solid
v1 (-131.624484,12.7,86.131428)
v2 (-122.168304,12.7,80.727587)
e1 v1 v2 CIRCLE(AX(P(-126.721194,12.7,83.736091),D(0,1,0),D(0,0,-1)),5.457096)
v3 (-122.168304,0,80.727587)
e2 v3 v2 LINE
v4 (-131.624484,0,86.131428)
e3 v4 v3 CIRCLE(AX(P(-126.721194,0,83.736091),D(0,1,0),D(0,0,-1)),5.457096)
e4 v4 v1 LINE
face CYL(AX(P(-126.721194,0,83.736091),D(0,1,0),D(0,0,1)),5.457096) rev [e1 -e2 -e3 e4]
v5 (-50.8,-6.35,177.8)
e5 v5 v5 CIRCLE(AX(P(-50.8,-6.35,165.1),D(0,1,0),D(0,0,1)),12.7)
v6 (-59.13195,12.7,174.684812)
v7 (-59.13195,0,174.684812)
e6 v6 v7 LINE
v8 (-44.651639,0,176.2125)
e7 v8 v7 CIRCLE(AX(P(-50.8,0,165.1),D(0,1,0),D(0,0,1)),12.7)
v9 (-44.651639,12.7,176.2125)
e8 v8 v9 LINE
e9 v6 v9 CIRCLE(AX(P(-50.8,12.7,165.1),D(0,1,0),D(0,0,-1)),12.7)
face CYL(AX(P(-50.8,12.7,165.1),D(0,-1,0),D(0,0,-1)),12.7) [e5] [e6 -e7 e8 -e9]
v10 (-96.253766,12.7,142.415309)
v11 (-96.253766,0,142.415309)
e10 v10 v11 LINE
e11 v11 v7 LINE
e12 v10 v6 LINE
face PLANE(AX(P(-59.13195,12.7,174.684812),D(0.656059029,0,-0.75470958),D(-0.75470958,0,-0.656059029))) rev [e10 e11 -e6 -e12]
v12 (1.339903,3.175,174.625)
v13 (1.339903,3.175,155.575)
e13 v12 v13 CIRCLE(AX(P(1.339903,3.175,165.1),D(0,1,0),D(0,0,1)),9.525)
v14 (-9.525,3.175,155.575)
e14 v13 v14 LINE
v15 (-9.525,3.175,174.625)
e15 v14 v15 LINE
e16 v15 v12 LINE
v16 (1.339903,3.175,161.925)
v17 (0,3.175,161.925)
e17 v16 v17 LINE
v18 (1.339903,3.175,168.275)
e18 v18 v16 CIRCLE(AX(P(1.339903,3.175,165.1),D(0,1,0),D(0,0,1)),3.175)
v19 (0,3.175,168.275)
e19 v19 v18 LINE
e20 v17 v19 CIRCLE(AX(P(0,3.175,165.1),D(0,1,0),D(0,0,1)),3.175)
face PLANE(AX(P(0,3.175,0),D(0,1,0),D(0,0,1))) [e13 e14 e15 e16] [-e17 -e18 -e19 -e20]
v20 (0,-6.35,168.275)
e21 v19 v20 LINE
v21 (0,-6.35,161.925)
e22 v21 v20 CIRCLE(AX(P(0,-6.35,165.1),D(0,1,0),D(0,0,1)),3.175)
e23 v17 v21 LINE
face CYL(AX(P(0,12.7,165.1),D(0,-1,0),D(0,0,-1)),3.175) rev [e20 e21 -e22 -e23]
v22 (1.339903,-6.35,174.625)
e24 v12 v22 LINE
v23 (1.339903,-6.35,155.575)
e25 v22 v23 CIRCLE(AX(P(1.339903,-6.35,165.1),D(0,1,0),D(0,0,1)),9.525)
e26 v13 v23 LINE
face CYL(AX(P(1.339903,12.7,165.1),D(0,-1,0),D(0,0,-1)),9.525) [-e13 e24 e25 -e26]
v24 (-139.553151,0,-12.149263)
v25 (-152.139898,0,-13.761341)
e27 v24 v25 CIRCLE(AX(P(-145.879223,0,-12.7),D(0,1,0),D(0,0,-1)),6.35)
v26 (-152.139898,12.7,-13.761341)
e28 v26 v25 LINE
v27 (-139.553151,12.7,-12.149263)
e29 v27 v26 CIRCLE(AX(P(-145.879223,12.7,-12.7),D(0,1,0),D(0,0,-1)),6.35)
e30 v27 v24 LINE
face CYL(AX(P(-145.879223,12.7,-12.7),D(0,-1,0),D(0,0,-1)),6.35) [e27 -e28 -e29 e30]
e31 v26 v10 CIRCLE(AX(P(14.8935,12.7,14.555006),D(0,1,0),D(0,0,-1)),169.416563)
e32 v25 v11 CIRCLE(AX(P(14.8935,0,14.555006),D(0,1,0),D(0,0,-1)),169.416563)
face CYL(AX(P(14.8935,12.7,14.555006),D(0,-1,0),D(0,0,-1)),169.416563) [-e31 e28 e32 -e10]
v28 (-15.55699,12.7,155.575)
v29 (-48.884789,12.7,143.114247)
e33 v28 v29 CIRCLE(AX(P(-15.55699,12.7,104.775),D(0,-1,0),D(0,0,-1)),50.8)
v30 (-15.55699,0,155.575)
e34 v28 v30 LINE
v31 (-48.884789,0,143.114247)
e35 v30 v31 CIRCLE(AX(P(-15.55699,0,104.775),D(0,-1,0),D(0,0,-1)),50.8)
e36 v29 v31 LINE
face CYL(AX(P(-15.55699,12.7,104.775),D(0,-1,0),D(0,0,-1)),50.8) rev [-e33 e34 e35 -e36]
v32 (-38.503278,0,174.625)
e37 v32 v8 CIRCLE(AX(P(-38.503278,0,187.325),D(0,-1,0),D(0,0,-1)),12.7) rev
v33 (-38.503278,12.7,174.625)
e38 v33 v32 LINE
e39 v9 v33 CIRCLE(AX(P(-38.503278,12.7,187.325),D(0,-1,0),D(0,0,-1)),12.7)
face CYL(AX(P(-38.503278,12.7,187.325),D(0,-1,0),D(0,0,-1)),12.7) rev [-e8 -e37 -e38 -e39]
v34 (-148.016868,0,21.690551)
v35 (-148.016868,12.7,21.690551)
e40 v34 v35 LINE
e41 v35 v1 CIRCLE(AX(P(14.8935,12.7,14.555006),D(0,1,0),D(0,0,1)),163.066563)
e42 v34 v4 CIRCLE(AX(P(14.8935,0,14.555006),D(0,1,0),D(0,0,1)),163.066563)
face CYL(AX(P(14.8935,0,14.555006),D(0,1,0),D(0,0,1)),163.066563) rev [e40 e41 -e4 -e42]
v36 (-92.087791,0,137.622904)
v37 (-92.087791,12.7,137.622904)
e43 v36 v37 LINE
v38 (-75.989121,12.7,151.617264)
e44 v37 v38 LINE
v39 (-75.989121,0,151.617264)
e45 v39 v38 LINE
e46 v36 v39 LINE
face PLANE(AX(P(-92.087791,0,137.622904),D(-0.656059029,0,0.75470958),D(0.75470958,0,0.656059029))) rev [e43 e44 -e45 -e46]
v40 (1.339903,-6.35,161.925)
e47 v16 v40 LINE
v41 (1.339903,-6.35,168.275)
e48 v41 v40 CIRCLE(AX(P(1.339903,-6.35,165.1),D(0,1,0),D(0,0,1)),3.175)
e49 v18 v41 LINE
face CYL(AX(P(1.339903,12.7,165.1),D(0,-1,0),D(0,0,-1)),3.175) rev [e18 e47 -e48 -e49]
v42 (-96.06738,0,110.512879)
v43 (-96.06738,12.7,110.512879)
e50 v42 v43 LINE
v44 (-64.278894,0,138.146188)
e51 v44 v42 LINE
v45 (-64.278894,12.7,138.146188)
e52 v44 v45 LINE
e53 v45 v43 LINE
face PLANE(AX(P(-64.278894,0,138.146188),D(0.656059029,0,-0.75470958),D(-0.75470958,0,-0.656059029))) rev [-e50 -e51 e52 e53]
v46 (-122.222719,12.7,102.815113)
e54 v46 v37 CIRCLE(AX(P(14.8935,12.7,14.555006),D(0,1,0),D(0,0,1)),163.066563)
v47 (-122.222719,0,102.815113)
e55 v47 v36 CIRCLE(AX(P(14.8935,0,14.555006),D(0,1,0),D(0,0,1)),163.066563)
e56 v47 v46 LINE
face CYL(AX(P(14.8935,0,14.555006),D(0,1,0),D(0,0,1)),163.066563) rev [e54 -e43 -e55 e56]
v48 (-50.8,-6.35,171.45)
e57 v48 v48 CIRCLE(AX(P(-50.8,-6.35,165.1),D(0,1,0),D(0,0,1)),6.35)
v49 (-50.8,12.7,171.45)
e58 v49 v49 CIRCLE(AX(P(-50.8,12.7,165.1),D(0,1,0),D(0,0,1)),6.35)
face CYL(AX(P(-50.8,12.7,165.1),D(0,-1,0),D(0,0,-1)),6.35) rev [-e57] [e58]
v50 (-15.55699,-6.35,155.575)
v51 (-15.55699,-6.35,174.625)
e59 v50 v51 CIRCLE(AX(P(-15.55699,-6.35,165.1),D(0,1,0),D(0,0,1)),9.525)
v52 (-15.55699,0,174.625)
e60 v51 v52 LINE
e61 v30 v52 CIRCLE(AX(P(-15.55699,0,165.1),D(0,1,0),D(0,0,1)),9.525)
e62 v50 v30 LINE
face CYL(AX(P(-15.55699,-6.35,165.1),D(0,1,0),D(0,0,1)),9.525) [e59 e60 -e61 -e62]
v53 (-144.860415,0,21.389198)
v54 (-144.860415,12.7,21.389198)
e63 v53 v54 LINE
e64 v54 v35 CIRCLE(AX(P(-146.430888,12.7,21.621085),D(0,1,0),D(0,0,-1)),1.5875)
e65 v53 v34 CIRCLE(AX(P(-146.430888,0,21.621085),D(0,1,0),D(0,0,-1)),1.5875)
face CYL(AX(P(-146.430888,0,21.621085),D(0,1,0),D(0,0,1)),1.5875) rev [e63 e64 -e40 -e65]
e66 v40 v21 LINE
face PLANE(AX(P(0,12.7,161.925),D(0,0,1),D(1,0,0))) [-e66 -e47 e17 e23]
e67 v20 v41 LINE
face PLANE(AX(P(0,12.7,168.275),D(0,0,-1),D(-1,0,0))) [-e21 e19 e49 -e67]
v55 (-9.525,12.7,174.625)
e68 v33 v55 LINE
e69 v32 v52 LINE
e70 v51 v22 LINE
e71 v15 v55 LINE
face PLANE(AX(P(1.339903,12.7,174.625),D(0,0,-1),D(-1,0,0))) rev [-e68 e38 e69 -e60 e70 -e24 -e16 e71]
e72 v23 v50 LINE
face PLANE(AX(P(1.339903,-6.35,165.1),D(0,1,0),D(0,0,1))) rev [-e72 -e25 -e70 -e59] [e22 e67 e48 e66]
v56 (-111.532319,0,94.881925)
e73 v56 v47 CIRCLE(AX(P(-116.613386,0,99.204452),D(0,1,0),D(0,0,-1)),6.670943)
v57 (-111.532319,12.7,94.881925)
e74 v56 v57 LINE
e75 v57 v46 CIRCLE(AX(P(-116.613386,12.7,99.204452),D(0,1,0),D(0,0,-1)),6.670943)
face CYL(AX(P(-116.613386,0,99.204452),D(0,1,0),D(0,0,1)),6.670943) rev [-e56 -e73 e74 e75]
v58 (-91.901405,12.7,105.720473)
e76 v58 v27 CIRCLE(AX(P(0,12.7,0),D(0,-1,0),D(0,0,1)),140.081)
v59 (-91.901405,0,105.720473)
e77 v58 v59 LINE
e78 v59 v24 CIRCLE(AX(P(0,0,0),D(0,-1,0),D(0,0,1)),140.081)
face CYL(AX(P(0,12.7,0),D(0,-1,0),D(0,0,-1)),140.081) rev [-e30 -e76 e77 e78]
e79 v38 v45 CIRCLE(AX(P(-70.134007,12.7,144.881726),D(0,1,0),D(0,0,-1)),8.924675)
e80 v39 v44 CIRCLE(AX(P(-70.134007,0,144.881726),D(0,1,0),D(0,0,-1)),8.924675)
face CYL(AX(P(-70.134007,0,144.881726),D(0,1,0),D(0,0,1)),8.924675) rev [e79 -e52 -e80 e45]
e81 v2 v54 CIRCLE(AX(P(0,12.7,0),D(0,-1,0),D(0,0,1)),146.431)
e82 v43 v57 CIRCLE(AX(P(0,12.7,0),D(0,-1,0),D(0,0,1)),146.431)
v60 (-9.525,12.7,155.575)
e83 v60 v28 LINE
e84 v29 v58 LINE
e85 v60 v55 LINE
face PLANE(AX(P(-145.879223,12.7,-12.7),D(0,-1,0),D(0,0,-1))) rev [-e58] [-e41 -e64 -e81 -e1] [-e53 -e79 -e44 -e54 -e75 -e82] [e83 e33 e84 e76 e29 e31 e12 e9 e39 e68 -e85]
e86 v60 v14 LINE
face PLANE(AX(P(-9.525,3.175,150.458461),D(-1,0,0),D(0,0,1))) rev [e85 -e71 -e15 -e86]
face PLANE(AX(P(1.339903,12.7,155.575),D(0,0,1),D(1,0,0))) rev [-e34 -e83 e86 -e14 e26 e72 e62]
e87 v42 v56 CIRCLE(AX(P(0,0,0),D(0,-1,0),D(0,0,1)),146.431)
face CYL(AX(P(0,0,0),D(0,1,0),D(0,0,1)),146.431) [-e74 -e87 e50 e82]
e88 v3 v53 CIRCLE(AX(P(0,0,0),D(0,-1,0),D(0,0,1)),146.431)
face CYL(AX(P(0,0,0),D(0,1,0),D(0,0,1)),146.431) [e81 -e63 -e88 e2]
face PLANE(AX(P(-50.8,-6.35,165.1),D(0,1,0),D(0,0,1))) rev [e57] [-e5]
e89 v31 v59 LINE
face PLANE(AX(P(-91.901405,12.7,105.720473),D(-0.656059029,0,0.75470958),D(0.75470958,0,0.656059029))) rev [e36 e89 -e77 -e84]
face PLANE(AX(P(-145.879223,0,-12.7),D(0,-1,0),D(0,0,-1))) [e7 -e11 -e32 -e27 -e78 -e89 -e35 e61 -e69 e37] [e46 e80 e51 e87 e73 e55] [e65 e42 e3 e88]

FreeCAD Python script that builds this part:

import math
import FreeCAD as App
import Part
import Sketcher
from FreeCAD import Vector
Q = App.Units.Quantity


def edges_at(feature, points):
    """Names of the edges that pass closest to the given points."""
    edges = feature.Shape.Edges
    near = lambda p: min(range(len(edges)), key=lambda i: edges[i].distToShape(Part.Vertex(*p))[0])
    return sorted({f"Edge{near(p) + 1}" for p in points})


def add_polygon(sketch, points):
    """Adds a closed chain of lines whose ends are joined by coincident constraints."""
    first, n = sketch.GeometryCount, len(points)
    for a, b in zip(points, points[1:] + points[:1]):
        sketch.addGeometry(Part.LineSegment(App.Vector(*a, 0), App.Vector(*b, 0)), False)
    for i in range(n):
        sketch.addConstraint(Sketcher.Constraint("Coincident", first + i, 2, first + (i + 1) % n, 1))

doc = App.newDocument("Part")
body = doc.addObject("PartDesign::Body", "Body")

# Sketch on XZ plane
sketch1 = body.newObject("Sketcher::SketchObject", "Sketch")
sketch1.AttachmentSupport = (doc.getObject("XZ_Plane"), [""])
sketch1.MapMode = "FlatFace"
sketch1.addGeometry([
    Part.LineSegment(Vector(-42.39974, 174.625, 0), Vector(1.339903, 174.625, 0)),  # 0
    Part.ArcOfCircle(Part.Circle(Vector(1.339903, 165.1, 0), Vector(0, 0, 1), 9.525), math.radians(-90), math.radians(90)),  # 1
    Part.LineSegment(Vector(1.339903, 155.575, 0), Vector(-15.55699, 155.575, 0)),  # 2
    Part.ArcOfCircle(Part.Circle(Vector(-15.55699, 104.775, 0), Vector(0, 0, 1), 50.8), math.radians(90), math.radians(131)),  # 3
    Part.LineSegment(Vector(-48.884789, 143.114247, 0), Vector(-91.901405, 105.720473, 0)),  # 4
    Part.ArcOfCircle(Part.Circle(Vector(0, 0, 0), Vector(0, 0, 1), 140.081), math.radians(131), math.radians(184.975529)),  # 5
    Part.ArcOfCircle(Part.Circle(Vector(-145.879223, -12.7, 0), Vector(0, 0, 1), 6.35), math.radians(-170.378404), math.radians(4.975529)),  # 6
    Part.ArcOfCircle(Part.Circle(Vector(14.8935, 14.555006, 0), Vector(0, 0, 1), 169.416563), math.radians(131), math.radians(189.621596)),  # 7
    Part.LineSegment(Vector(-96.253766, 142.415309, 0), Vector(-59.13195, 174.684812, 0)),  # 8
    Part.ArcOfCircle(Part.Circle(Vector(-50.8, 165.1, 0), Vector(0, 0, 1), 12.7), math.radians(48.590378), math.radians(131)),  # 9
    Part.LineSegment(Vector(0, 161.925, 0), Vector(1.339903, 161.925, 0)),  # 10
    Part.ArcOfCircle(Part.Circle(Vector(1.339903, 165.1, 0), Vector(0, 0, 1), 3.175), math.radians(-90), math.radians(90)),  # 11
    Part.LineSegment(Vector(1.339903, 168.275, 0), Vector(0, 168.275, 0)),  # 12
    Part.ArcOfCircle(Part.Circle(Vector(0, 165.1, 0), Vector(0, 0, 1), 3.175), math.radians(90), math.radians(270)),  # 13
    Part.Circle(Vector(-50.8, 165.1, 0), Vector(0, 0, 1), 6.35),  # 14
], False)
sketch1.addConstraint([
    Sketcher.Constraint("Tangent", 0, 2, 1, 2),
    Sketcher.Constraint("Tangent", 1, 1, 2, 1),
    Sketcher.Constraint("Tangent", 2, 2, 3, 1),
    Sketcher.Constraint("Tangent", 3, 2, 4, 1),
    Sketcher.Constraint("Tangent", 4, 2, 5, 1),
    Sketcher.Constraint("Tangent", 5, 2, 6, 2),
    Sketcher.Constraint("Tangent", 6, 1, 7, 2),
    Sketcher.Constraint("Tangent", 7, 1, 8, 1),
    Sketcher.Constraint("Tangent", 8, 2, 9, 2),
    Sketcher.Constraint("Coincident", 9, 1, 0, 1),
    Sketcher.Constraint("Tangent", 10, 2, 11, 1),
    Sketcher.Constraint("Tangent", 11, 2, 12, 1),
    Sketcher.Constraint("Tangent", 12, 2, 13, 1),
    Sketcher.Constraint("Tangent", 13, 2, 10, 1),
    Sketcher.Constraint("Horizontal", 0),
    Sketcher.Constraint("Horizontal", 2),
    Sketcher.Constraint("Horizontal", 10),
    Sketcher.Constraint("Horizontal", 12),
    Sketcher.Constraint("Coincident", 5, 3, -1, 1),
    Sketcher.Constraint("Coincident", 11, 3, 1, 3),
    Sketcher.Constraint("Coincident", 14, 3, 9, 3),
    Sketcher.Constraint("Equal", 6, 14),
    Sketcher.Constraint("PointOnObject", 13, 3, -2),
    Sketcher.Constraint("Parallel", 4, 8),
    Sketcher.Constraint("Horizontal", 1, 3, 9, 3),
    Sketcher.Constraint("Radius", 3, Q("2 in")),
    Sketcher.Constraint("Diameter", 14, Q("0.5 in")),
    Sketcher.Constraint("Radius", 9, Q("0.5 in")),
    Sketcher.Constraint("DistanceX", 9, 3, -1, 1, Q("2 in")),
    Sketcher.Constraint("Angle", 4, Q("-139 deg")),
    Sketcher.Constraint("Radius", 1, Q("0.375 in")),
    Sketcher.Constraint("Radius", 5, Q("5.515 in")),
    Sketcher.Constraint("Radius", 11, Q("0.125 in")),
    Sketcher.Constraint("DistanceY", 6, 3, 1, 3, Q("7 in")),
    Sketcher.Constraint("DistanceY", -1, 1, 1, 3, Q("6.5 in")),
    Sketcher.Constraint("Radius", 7, Q("169.416563 mm")),
    Sketcher.Constraint("DistanceX", 0, 1, 0, 2, Q("43.739642 mm")),
])
pad1 = body.newObject("PartDesign::Pad", "Pad")
pad1.Profile = sketch1
pad1.Length = Q("0.5 in")
pad1.Reversed = True

# Sketch on XZ plane
sketch2 = body.newObject("Sketcher::SketchObject", "Sketch001")
sketch2.AttachmentSupport = (doc.getObject("XZ_Plane"), [""])
sketch2.MapMode = "FlatFace"
sketch2.AttachmentOffset = App.Placement(Vector(0, 0, -0.5 * 25.4), App.Rotation())
sketch2.addGeometry([
    Part.LineSegment(Vector(-64.278894, 138.146188, 0), Vector(-96.06738, 110.512879, 0)),  # 0
    Part.ArcOfCircle(Part.Circle(Vector(0, 0, 0), Vector(0, 0, 1), 146.431), math.radians(131), math.radians(139.611776)),  # 1
    Part.ArcOfCircle(Part.Circle(Vector(-116.613386, 99.204452, 0), Vector(0, 0, 1), 6.670943), math.radians(147.23109), math.radians(319.611776)),  # 2
    Part.ArcOfCircle(Part.Circle(Vector(14.8935, 14.555006, 0), Vector(0, 0, 1), 163.066563), math.radians(131), math.radians(147.23109)),  # 3
    Part.LineSegment(Vector(-92.087791, 137.622904, 0), Vector(-75.989121, 151.617264, 0)),  # 4
    Part.ArcOfCircle(Part.Circle(Vector(-70.134007, 144.881726, 0), Vector(0, 0, 1), 8.924675), math.radians(-49), math.radians(131)),  # 5
    Part.ArcOfCircle(Part.Circle(Vector(-126.721194, 83.736091, 0), Vector(0, 0, 1), 5.457096), math.radians(-33.456327), math.radians(153.963737)),  # 6
    Part.ArcOfCircle(Part.Circle(Vector(0, 0, 0), Vector(0, 0, 1), 146.431), math.radians(146.543673), math.radians(171.600746)),  # 7
    Part.ArcOfCircle(Part.Circle(Vector(-146.430888, 21.621085, 0), Vector(0, 0, 1), 1.5875), math.radians(177.492023), math.radians(351.600746)),  # 8
    Part.ArcOfCircle(Part.Circle(Vector(14.8935, 14.555006, 0), Vector(0, 0, 1), 163.066563), math.radians(153.963737), math.radians(177.492023)),  # 9
], False)
sketch2.addConstraint([
    Sketcher.Constraint("Tangent", 0, 2, 1, 1),
    Sketcher.Constraint("Tangent", 1, 2, 2, 2),
    Sketcher.Constraint("Tangent", 2, 1, 3, 2),
    Sketcher.Constraint("Tangent", 3, 1, 4, 1),
    Sketcher.Constraint("Tangent", 4, 2, 5, 2),
    Sketcher.Constraint("Tangent", 5, 1, 0, 1),
    Sketcher.Constraint("Tangent", 6, 1, 7, 1),
    Sketcher.Constraint("Tangent", 7, 2, 8, 2),
    Sketcher.Constraint("Tangent", 8, 1, 9, 2),
    Sketcher.Constraint("Tangent", 9, 1, 6, 2),
    Sketcher.Constraint("Coincident", 1, 3, -1, 1),
    Sketcher.Constraint("Coincident", 7, 3, -1, 1),
    Sketcher.Constraint("Coincident", 9, 3, 3, 3),
    Sketcher.Constraint("Equal", 1, 7),
    Sketcher.Constraint("Equal", 3, 9),
    Sketcher.Constraint("Parallel", 0, 4),
    Sketcher.Constraint("Angle", 0, Q("-139 deg")),
    Sketcher.Constraint("Radius", 1, Q("5.765 in")),
    Sketcher.Constraint("Radius", 8, Q("0.0625 in")),
    Sketcher.Constraint("Radius", 2, Q("6.670943 mm")),
    Sketcher.Constraint("Radius", 3, Q("163.066563 mm")),
    Sketcher.Constraint("Radius", 5, Q("8.924675 mm")),
    Sketcher.Constraint("Radius", 6, Q("5.457096 mm")),
    Sketcher.Constraint("DistanceX", -1, 1, 3, 3, Q("14.8935 mm")),
    Sketcher.Constraint("DistanceY", 1, 2, 5, 3, Q("49.999801 mm")),
])
pocket1 = body.newObject("PartDesign::Pocket", "Pocket")
pocket1.Profile = sketch2
pocket1.Type = "ThroughAll"
pocket1.Reversed = True
doc.recompute()

fillet = body.newObject("PartDesign::Fillet", "Fillet")
fillet.Base = (pocket1, edges_at(pocket1, [(-42.4, 6.35, 174.625)]))
fillet.Radius = Q("0.5 in")

# Sketch on XZ plane
sketch3 = body.newObject("Sketcher::SketchObject", "Sketch002")
sketch3.AttachmentSupport = (doc.getObject("XZ_Plane"), [""])
sketch3.MapMode = "FlatFace"
sketch3.addGeometry([
    Part.Circle(Vector(-50.8, 165.1, 0), Vector(0, 0, 1), 12.7),  # 0
    Part.Circle(Vector(-50.8, 165.1, 0), Vector(0, 0, 1), 6.35),  # 1
    Part.LineSegment(Vector(-15.55699, 174.625, 0), Vector(1.339903, 174.625, 0)),  # 2
    Part.ArcOfCircle(Part.Circle(Vector(1.339903, 165.1, 0), Vector(0, 0, 1), 9.525), math.radians(-90), math.radians(90)),  # 3
    Part.LineSegment(Vector(1.339903, 155.575, 0), Vector(-15.55699, 155.575, 0)),  # 4
    Part.ArcOfCircle(Part.Circle(Vector(-15.55699, 165.1, 0), Vector(0, 0, 1), 9.525), math.radians(90), math.radians(270)),  # 5
    Part.ArcOfCircle(Part.Circle(Vector(1.339903, 165.1, 0), Vector(0, 0, 1), 3.175), math.radians(-90), math.radians(90)),  # 6
    Part.LineSegment(Vector(1.339903, 168.275, 0), Vector(0, 168.275, 0)),  # 7
    Part.ArcOfCircle(Part.Circle(Vector(0, 165.1, 0), Vector(0, 0, 1), 3.175), math.radians(90), math.radians(270)),  # 8
    Part.LineSegment(Vector(0, 161.925, 0), Vector(1.339903, 161.925, 0)),  # 9
], False)
sketch3.addConstraint([
    Sketcher.Constraint("Tangent", 2, 2, 3, 2),
    Sketcher.Constraint("Tangent", 3, 1, 4, 1),
    Sketcher.Constraint("Tangent", 4, 2, 5, 2),
    Sketcher.Constraint("Tangent", 5, 1, 2, 1),
    Sketcher.Constraint("Tangent", 6, 2, 7, 1),
    Sketcher.Constraint("Tangent", 7, 2, 8, 1),
    Sketcher.Constraint("Tangent", 8, 2, 9, 1),
    Sketcher.Constraint("Tangent", 9, 2, 6, 1),
    Sketcher.Constraint("Horizontal", 2),
    Sketcher.Constraint("Horizontal", 4),
    Sketcher.Constraint("Horizontal", 7),
    Sketcher.Constraint("Horizontal", 9),
    Sketcher.Constraint("Coincident", 1, 3, 0, 3),
    Sketcher.Constraint("Coincident", 6, 3, 3, 3),
    Sketcher.Constraint("PointOnObject", 8, 3, -2),
    Sketcher.Constraint("Horizontal", 1, 3, 3, 3),
    Sketcher.Constraint("Diameter", 0, Q("1 in")),
    Sketcher.Constraint("Diameter", 1, Q("0.5 in")),
    Sketcher.Constraint("DistanceX", 0, 3, -1, 1, Q("2 in")),
    Sketcher.Constraint("Radius", 3, Q("0.375 in")),
    Sketcher.Constraint("Radius", 6, Q("0.125 in")),
    Sketcher.Constraint("DistanceY", -1, 1, 0, 3, Q("6.5 in")),
    Sketcher.Constraint("DistanceX", 2, 1, 2, 2, Q("16.896893 mm")),
    Sketcher.Constraint("DistanceX", 7, 2, 7, 1, Q("1.339903 mm")),
])
pad2 = body.newObject("PartDesign::Pad", "Pad001")
pad2.Profile = sketch3
pad2.Length = Q("0.25 in")

# Sketch on XZ plane
sketch4 = body.newObject("Sketcher::SketchObject", "Sketch003")
sketch4.AttachmentSupport = (doc.getObject("XZ_Plane"), [""])
sketch4.MapMode = "FlatFace"
sketch4.AttachmentOffset = App.Placement(Vector(0, 0, -0.5 * 25.4), App.Rotation())
add_polygon(sketch4, [(-9.525, 150.458461), (-9.525, 180.055347), (17.548872, 180.055347), (17.548872, 150.458461)])  # lines 0-3
sketch4.addConstraint([
    Sketcher.Constraint("Vertical", 0),
    Sketcher.Constraint("Horizontal", 1),
    Sketcher.Constraint("Vertical", 2),
    Sketcher.Constraint("Horizontal", 3),
    Sketcher.Constraint("DistanceX", 0, 2, -1, 1, Q("0.375 in")),
    Sketcher.Constraint("DistanceX", 1, 1, 1, 2, Q("27.073872 mm")),
    Sketcher.Constraint("DistanceY", 0, 1, 0, 2, Q("29.596885 mm")),
    Sketcher.Constraint("DistanceY", -1, 1, 2, 2, Q("150.458461 mm")),
])
pocket2 = body.newObject("PartDesign::Pocket", "Pocket001")
pocket2.Profile = sketch4
pocket2.Length = Q("0.375 in")
pocket2.Reversed = True

doc.recompute()
